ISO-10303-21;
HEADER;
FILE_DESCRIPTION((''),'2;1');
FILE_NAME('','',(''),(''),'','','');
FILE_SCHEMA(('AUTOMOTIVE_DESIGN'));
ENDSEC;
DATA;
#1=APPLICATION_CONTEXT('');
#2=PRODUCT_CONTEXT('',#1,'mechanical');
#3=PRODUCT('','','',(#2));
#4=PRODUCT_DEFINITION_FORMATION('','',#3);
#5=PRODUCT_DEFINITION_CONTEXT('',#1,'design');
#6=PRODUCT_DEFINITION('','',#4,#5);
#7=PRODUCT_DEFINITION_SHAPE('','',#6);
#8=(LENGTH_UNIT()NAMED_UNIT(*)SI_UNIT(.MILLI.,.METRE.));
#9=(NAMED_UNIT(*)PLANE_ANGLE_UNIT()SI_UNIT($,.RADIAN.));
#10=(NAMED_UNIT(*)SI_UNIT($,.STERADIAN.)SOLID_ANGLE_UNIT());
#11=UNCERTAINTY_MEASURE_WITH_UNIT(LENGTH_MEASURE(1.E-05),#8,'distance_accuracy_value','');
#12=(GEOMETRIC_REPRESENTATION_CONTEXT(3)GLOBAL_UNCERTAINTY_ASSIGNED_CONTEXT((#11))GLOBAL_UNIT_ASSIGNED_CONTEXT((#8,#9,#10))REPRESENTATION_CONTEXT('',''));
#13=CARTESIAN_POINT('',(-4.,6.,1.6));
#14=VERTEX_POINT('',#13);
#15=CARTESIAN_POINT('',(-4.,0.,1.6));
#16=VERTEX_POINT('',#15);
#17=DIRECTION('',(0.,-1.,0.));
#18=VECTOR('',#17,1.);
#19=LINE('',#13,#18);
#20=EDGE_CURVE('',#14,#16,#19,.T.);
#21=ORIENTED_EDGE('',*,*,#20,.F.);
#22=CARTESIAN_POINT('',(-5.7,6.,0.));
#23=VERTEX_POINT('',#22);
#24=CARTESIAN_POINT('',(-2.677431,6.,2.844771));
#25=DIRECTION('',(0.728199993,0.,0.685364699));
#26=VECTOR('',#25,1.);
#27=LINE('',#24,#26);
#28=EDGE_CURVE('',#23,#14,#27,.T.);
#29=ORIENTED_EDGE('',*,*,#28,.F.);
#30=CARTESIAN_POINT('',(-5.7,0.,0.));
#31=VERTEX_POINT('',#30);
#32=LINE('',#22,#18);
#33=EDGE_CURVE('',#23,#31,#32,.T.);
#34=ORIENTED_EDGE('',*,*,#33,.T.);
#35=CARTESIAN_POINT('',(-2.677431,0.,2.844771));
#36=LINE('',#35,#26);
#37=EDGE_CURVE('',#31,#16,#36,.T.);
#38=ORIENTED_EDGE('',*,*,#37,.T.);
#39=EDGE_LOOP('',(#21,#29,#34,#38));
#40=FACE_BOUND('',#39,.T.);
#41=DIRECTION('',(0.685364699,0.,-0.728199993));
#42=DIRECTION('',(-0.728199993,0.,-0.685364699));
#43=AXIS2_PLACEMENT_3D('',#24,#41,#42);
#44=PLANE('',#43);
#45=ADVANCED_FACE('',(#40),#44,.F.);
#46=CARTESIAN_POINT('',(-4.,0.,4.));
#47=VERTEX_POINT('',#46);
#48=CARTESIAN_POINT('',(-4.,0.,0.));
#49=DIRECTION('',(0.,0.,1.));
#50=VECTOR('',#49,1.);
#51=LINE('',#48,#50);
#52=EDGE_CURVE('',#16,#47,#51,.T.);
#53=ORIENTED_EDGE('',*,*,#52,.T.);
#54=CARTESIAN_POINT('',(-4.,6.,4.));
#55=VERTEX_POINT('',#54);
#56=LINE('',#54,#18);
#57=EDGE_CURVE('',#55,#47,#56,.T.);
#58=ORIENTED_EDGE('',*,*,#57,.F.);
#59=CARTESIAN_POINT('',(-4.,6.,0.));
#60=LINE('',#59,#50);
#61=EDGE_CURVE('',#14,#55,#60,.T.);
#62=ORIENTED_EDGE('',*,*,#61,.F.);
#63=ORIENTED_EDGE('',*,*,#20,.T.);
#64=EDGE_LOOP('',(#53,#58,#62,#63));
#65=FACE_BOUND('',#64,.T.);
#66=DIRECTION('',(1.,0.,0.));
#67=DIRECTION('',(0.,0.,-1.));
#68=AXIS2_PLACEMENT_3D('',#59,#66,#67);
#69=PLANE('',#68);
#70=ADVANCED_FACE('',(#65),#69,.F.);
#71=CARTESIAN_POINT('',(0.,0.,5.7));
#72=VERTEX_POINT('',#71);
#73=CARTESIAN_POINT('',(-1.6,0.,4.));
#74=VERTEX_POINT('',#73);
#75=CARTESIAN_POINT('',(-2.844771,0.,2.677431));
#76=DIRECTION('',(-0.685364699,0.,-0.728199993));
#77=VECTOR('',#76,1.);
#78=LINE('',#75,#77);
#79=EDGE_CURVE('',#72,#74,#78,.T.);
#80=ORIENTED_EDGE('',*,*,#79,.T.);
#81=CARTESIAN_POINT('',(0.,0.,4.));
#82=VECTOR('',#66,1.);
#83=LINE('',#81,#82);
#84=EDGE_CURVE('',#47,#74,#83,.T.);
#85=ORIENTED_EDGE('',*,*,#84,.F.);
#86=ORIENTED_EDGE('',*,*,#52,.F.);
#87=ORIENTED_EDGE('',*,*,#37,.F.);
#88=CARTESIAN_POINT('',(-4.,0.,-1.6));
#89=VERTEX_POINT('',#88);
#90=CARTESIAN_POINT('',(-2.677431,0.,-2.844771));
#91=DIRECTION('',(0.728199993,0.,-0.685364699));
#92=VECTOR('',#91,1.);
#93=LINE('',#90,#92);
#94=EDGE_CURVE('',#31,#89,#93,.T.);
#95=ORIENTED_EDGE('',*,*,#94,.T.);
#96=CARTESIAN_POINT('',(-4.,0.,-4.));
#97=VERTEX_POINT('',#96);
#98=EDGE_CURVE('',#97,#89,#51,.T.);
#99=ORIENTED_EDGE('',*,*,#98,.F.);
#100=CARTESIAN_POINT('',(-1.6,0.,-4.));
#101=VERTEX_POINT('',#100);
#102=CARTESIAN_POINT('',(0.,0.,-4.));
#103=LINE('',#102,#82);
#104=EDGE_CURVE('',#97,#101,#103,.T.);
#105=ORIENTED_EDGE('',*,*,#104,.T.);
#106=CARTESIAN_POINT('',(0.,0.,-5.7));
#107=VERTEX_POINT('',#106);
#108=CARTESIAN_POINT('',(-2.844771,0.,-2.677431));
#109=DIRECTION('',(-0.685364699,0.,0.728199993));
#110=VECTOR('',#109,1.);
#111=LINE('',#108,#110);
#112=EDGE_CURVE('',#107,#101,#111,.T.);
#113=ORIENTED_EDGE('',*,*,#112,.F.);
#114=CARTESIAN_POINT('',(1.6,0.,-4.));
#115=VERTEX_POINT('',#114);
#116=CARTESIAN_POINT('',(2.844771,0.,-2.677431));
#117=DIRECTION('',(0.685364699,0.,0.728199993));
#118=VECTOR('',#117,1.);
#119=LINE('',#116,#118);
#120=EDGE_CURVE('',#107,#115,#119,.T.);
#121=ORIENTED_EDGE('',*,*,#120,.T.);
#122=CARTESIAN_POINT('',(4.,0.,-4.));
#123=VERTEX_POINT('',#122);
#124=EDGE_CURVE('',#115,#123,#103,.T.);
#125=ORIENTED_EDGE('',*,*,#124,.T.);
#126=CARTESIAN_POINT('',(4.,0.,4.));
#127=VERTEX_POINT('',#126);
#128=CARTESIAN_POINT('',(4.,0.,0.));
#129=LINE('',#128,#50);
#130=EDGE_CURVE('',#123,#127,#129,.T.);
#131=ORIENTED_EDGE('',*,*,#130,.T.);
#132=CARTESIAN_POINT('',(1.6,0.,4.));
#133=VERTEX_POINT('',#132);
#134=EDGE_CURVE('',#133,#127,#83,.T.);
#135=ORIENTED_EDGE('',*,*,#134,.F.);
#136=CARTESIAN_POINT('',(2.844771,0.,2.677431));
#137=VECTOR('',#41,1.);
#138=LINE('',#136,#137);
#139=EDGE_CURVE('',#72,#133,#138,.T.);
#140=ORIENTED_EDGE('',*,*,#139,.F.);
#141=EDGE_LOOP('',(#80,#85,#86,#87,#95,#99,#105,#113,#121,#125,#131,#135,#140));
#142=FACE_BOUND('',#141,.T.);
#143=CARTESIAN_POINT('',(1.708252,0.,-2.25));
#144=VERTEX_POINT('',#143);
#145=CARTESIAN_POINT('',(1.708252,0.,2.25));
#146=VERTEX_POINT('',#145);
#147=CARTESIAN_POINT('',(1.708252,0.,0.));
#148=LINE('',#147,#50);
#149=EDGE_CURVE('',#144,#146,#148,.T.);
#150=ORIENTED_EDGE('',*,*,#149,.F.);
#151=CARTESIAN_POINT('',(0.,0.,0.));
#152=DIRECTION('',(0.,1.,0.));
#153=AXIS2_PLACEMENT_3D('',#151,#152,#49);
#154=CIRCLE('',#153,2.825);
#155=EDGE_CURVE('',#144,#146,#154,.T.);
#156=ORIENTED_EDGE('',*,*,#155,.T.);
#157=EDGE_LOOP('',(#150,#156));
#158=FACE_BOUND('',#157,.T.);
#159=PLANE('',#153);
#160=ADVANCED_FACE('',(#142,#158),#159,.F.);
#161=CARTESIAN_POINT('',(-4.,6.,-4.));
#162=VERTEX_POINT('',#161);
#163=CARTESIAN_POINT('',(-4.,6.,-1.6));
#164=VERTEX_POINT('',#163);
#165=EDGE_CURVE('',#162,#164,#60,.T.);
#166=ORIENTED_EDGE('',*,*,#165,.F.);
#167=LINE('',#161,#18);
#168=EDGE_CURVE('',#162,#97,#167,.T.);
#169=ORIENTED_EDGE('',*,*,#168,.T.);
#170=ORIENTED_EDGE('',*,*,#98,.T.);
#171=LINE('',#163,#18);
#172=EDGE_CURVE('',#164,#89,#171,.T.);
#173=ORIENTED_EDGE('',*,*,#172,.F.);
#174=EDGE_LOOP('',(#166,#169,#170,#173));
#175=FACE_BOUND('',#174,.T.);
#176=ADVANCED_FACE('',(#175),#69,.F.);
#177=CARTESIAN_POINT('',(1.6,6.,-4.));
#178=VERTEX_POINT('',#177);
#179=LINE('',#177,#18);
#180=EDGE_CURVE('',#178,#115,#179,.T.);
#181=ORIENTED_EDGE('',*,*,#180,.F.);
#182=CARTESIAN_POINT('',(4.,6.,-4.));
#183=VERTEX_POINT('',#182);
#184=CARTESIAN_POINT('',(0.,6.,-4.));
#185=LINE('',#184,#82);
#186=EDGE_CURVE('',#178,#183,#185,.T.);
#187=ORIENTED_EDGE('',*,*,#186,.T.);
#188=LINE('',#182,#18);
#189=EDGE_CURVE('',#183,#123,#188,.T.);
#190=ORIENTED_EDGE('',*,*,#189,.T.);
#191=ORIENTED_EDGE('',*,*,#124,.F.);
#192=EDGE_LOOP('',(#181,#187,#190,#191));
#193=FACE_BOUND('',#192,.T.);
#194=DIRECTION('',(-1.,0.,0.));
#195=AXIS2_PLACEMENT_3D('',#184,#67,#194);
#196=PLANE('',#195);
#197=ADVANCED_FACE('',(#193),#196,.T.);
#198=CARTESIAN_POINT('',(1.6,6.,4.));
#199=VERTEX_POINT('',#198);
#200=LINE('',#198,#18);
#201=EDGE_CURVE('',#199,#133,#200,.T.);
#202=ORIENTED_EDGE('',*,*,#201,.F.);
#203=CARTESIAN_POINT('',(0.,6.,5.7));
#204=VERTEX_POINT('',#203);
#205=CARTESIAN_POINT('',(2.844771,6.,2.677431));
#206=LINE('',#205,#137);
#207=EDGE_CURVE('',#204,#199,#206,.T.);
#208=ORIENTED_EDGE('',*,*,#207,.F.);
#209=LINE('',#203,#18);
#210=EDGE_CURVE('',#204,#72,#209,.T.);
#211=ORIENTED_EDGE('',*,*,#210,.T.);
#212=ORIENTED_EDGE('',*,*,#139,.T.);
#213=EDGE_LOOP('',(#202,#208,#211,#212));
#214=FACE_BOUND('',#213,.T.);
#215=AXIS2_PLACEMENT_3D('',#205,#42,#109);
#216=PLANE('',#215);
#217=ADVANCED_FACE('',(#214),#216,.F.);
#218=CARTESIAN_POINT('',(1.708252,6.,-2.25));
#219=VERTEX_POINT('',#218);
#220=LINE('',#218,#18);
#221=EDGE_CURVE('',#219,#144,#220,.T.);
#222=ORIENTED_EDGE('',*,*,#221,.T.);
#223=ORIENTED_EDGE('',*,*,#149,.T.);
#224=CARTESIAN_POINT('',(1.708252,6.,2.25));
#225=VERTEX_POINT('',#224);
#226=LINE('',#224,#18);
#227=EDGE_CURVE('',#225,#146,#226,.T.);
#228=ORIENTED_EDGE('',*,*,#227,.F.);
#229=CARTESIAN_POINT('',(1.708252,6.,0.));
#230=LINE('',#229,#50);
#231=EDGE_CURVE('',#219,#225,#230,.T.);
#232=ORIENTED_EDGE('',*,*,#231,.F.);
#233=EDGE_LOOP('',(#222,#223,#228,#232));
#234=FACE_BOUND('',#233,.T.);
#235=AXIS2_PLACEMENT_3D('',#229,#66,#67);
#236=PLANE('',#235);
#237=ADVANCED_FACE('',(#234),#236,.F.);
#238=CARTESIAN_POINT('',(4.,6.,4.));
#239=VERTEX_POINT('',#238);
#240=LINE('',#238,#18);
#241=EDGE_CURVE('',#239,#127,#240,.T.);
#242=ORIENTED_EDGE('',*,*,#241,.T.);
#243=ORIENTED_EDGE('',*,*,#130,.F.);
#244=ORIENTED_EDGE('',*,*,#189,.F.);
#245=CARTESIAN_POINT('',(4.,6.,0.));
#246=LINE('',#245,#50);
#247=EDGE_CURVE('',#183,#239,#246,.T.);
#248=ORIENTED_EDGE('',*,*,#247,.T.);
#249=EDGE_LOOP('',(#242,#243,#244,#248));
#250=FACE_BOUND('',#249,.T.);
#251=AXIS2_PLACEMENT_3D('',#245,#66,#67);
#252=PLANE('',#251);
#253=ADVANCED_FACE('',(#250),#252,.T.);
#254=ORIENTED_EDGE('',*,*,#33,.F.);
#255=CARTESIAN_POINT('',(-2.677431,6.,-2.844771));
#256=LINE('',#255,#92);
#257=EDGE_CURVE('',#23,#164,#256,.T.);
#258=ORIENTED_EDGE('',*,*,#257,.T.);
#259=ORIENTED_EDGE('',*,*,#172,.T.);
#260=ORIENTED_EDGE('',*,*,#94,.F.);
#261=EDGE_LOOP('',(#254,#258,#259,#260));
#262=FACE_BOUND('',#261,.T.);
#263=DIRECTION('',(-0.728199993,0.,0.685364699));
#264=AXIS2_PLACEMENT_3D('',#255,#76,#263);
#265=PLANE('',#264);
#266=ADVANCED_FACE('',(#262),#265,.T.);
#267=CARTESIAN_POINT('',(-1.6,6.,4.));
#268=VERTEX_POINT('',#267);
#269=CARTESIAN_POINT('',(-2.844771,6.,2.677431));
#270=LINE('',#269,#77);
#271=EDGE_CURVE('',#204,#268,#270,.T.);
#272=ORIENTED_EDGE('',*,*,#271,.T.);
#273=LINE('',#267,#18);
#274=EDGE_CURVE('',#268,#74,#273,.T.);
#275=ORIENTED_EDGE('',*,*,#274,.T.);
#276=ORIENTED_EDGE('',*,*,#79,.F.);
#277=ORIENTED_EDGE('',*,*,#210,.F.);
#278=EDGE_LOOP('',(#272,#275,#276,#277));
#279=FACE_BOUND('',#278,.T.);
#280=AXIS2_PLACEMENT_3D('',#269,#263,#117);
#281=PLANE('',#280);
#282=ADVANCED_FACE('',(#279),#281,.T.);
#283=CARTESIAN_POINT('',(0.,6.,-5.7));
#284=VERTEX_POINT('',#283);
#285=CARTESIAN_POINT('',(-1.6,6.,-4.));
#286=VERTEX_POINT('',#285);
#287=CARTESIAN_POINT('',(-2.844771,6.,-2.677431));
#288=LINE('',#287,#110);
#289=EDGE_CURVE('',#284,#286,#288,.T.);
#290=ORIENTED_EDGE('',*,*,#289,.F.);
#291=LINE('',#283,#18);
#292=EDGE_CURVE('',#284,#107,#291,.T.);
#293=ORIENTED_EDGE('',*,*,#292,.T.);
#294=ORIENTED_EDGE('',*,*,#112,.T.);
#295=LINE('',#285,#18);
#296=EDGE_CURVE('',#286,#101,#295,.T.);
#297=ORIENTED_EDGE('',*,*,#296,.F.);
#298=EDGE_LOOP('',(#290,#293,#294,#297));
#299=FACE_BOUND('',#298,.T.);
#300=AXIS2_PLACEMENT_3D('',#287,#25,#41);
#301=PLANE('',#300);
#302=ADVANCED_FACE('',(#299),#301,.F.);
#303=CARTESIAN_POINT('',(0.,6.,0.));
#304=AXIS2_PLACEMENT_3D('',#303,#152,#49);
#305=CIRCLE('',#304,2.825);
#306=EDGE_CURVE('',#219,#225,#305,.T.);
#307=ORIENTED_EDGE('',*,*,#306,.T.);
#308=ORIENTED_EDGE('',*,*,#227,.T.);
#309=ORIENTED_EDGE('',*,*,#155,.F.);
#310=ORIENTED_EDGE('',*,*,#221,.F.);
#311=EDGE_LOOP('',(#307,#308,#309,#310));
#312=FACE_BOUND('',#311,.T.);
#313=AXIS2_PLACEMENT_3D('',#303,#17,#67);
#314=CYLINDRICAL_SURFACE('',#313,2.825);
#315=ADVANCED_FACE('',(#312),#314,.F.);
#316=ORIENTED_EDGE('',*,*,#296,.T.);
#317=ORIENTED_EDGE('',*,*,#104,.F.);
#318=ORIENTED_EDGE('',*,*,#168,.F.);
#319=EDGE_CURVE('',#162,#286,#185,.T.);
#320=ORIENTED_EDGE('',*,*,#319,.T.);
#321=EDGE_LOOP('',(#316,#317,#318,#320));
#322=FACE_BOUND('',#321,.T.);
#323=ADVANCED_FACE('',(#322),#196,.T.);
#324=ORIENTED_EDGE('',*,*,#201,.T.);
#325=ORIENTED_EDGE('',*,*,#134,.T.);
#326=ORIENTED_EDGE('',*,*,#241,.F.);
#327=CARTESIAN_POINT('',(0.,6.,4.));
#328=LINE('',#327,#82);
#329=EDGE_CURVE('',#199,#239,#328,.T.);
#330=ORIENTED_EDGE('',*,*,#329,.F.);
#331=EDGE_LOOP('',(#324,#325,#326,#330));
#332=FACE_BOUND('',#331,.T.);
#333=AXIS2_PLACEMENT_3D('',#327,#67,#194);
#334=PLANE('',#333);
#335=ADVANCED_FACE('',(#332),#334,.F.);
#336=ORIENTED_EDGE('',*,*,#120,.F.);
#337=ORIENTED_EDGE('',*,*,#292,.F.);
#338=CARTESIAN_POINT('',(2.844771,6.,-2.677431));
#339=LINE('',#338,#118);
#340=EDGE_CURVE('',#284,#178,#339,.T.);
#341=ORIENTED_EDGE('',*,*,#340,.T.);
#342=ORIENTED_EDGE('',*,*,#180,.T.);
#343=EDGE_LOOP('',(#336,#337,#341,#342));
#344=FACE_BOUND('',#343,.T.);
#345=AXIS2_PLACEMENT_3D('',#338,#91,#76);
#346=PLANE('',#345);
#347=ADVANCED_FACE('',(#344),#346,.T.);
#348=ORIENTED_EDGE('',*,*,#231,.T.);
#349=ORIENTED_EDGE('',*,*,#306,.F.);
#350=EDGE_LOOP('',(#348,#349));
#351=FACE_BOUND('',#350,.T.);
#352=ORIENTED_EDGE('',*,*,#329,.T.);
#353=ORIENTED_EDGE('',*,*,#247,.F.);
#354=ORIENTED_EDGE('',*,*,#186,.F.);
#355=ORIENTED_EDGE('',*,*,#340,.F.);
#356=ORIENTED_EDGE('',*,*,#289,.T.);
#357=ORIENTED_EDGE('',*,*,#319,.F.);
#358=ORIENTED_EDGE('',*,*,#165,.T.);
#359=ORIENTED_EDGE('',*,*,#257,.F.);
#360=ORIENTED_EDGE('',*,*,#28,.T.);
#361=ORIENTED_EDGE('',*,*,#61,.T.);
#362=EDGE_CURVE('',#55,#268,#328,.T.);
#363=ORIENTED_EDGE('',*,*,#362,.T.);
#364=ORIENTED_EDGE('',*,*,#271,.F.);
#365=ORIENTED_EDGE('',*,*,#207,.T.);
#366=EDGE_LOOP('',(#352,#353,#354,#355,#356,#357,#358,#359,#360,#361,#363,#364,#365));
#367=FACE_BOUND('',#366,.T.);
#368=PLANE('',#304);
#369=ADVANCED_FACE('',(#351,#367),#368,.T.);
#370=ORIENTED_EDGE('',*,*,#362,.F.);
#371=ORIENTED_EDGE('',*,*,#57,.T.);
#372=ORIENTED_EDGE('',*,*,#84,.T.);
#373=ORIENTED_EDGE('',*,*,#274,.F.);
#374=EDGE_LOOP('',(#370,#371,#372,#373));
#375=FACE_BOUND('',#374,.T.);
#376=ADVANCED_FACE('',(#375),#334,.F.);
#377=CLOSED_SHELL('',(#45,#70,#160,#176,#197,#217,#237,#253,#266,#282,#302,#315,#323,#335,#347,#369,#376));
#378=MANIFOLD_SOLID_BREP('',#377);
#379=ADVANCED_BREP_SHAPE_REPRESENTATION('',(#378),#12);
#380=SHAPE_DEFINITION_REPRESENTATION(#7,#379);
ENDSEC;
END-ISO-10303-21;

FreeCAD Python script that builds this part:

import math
import FreeCAD as App
import Part
import Sketcher
Q = App.Units.Quantity


def add_polygon(sketch, points):
    """Adds a closed chain of lines whose ends are joined by coincident constraints."""
    first, n = sketch.GeometryCount, len(points)
    for a, b in zip(points, points[1:] + points[:1]):
        sketch.addGeometry(Part.LineSegment(App.Vector(*a, 0), App.Vector(*b, 0)), False)
    for i in range(n):
        sketch.addConstraint(Sketcher.Constraint("Coincident", first + i, 2, first + (i + 1) % n, 1))

doc = App.newDocument("Part")
body = doc.addObject("PartDesign::Body", "Body")

sketch1 = body.newObject("Sketcher::SketchObject", "Sketch")
sketch1.AttachmentSupport = (doc.getObject("XZ_Plane"), [""])
sketch1.MapMode = "FlatFace"
add_polygon(sketch1, [(-4, 1.6), (-4, 4), (-1.6, 4), (0, 5.7), (1.6, 4), (4, 4), (4, -4), (1.6, -4), (0, -5.7), (-1.6, -4), (-4, -4), (-4, -1.6), (-5.7, 0)])
sketch1.addGeometry(Part.ArcOfCircle(Part.Circle(App.Vector(0, 0, 0), App.Vector(0, 0, 1), 2.8), math.radians(53), math.radians(307)), False)
sketch1.addGeometry(Part.LineSegment(App.Vector(1.7, -2.2, 0), App.Vector(1.7, 2.2, 0)), False)
sketch1.addConstraint([
    Sketcher.Constraint("Coincident", 13, 1, 14, 2),
    Sketcher.Constraint("Coincident", 14, 1, 13, 2),
    Sketcher.Constraint("Vertical", 0),
    Sketcher.Constraint("Horizontal", 1),
    Sketcher.Constraint("Horizontal", 4),
    Sketcher.Constraint("Vertical", 5),
    Sketcher.Constraint("Horizontal", 6),
    Sketcher.Constraint("Horizontal", 9),
    Sketcher.Constraint("Vertical", 10),
    Sketcher.Constraint("Vertical", 14),
    Sketcher.Constraint("Coincident", 13, 3, -1, 1),
    Sketcher.Constraint("Symmetric", 0, 2, 5, 2, -1, 1),
    Sketcher.Constraint("Symmetric", 2, 2, 7, 2, -1, 1),
    Sketcher.Constraint("Symmetric", 3, 2, 8, 2, -1, 1),
    Sketcher.Constraint("Symmetric", 1, 2, 3, 2, -2),
    Sketcher.Constraint("Symmetric", 10, 2, 12, 2, -1),
    Sketcher.Constraint("PointOnObject", 2, 2, -2),
    Sketcher.Constraint("PointOnObject", 11, 2, -1),
    Sketcher.Constraint("Parallel", 2, 7),
    Sketcher.Constraint("Perpendicular", 7, 11),
    Sketcher.Constraint("Equal", 9, 0),
    Sketcher.Constraint("Equal", 8, 11),
    Sketcher.Constraint("DistanceY", 5, 2, 5, 1, Q("8 mm")),
    Sketcher.Constraint("DistanceX", 1, 1, 1, 2, Q("2.4 mm")),
    Sketcher.Constraint("DistanceY", 14, 1, 14, 2, Q("4.5 mm")),
    Sketcher.Constraint("Radius", 13, Q("2.825 mm")),
    Sketcher.Constraint("DistanceY", -1, 1, 2, 2, Q("5.7 mm")),
])
pad1 = body.newObject("PartDesign::Pad", "Pad")
pad1.Profile = sketch1
pad1.Length = 6
pad1.Reversed = True

doc.recompute()
